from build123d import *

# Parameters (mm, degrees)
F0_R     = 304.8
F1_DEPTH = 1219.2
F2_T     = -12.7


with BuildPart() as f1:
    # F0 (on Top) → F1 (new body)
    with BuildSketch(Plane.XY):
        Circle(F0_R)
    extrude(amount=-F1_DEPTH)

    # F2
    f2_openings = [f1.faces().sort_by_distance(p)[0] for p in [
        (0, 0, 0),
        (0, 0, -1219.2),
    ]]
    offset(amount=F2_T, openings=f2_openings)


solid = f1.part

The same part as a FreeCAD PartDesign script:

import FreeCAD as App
import Part
import Sketcher
from FreeCAD import Vector
Q = App.Units.Quantity


def faces_at(feature, points):
    """Names of the faces that lie closest to the given points."""
    faces = feature.Shape.Faces
    near = lambda p: min(range(len(faces)), key=lambda i: faces[i].distToShape(Part.Vertex(*p))[0])
    return sorted({f"Face{near(p) + 1}" for p in points})

doc = App.newDocument("Part")
body = doc.addObject("PartDesign::Body", "Body")

# Sketch on XY plane
sketch1 = doc.addObject("Sketcher::SketchObject", "Sketch")
body.addObject(sketch1)
sketch1.AttachmentSupport = (doc.XY_Plane, [""])
sketch1.MapMode = "FlatFace"
sketch1.addGeometry(Part.Circle(Vector(0, 0, 0), Vector(0, 0, 1), 305), False)
sketch1.addConstraint([
    Sketcher.Constraint("Coincident", 0, 3, -1, 1),
    Sketcher.Constraint("Diameter", 0, Q("24 in")),
])
pad1 = doc.addObject("PartDesign::Pad", "Pad")
body.addObject(pad1)
pad1.Profile = sketch1
pad1.Length = Q("48 in")
pad1.Reversed = True
doc.recompute()

thickness = doc.addObject("PartDesign::Thickness", "Thickness")
body.addObject(thickness)
thickness.Base = (pad1, faces_at(pad1, [(0, 0, 0), (0, 0, -1219.2)]))
thickness.Value = Q("0.5 in")
thickness.Reversed = True
thickness.Join = "Arc"

doc.recompute()
